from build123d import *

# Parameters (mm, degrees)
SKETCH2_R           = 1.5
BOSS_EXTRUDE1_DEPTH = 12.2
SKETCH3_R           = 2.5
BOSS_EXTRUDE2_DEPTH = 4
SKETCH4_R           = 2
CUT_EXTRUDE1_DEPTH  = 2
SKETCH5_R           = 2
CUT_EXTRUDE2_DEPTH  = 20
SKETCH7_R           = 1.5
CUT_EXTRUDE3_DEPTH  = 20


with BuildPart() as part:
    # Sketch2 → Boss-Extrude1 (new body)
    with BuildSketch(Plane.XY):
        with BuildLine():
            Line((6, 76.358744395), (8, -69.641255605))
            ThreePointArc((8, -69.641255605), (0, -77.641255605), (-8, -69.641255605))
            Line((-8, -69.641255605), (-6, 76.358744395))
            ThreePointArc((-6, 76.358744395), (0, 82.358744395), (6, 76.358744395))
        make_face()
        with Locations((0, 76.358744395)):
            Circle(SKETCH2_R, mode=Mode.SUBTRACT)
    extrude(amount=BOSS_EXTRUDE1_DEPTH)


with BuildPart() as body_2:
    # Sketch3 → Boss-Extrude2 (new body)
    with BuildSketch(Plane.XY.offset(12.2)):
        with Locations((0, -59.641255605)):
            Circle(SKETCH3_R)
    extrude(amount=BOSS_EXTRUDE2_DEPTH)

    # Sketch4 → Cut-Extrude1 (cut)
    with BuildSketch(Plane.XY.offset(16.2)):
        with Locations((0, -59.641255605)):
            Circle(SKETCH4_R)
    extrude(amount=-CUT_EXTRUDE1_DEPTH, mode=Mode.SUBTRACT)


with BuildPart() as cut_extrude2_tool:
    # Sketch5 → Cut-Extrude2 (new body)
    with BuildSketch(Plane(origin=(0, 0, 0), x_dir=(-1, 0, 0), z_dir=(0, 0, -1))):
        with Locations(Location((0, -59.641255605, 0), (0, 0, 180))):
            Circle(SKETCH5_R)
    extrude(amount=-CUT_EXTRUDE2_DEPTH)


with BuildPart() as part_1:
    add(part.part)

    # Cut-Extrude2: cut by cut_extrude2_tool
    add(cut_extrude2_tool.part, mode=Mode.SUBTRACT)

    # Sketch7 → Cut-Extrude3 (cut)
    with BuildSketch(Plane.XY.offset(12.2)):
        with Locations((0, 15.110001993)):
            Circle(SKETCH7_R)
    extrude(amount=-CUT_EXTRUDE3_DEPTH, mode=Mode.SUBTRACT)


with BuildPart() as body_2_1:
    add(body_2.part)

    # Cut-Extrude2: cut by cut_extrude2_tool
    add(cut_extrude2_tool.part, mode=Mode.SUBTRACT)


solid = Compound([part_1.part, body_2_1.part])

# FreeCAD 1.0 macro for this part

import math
import FreeCAD as App
import Part
import Sketcher
Q = App.Units.Quantity

doc = App.newDocument("Part")
body = doc.addObject("PartDesign::Body", "Body")

sketch1 = doc.addObject("Sketcher::SketchObject", "Sketch")
body.addObject(sketch1)
sketch1.AttachmentSupport = (doc.XY_Plane, [""])
sketch1.MapMode = "FlatFace"
sketch1.addGeometry([
    Part.LineSegment(App.Vector(8, -69.6, 0), App.Vector(6, 76.4, 0)),
    Part.ArcOfCircle(Part.Circle(App.Vector(0, 76.4, 0), App.Vector(0, 0, 1), 6), math.radians(0), math.radians(180)),
    Part.LineSegment(App.Vector(-6, 76.4, 0), App.Vector(-8, -69.6, 0)),
    Part.ArcOfCircle(Part.Circle(App.Vector(0, -69.6, 0), App.Vector(0, 0, 1), 8), math.radians(180), math.radians(360)),
    Part.Circle(App.Vector(0, 76.4, 0), App.Vector(0, 0, 1), 1.5),
], False)
sketch1.addConstraint([
    Sketcher.Constraint("Coincident", 0, 2, 1, 1),
    Sketcher.Constraint("Coincident", 1, 2, 2, 1),
    Sketcher.Constraint("Coincident", 2, 2, 3, 1),
    Sketcher.Constraint("Coincident", 3, 2, 0, 1),
    Sketcher.Constraint("Coincident", 4, 3, 1, 3),
    Sketcher.Constraint("Symmetric", 0, 2, 1, 2, -2),
    Sketcher.Constraint("Symmetric", 2, 2, 3, 2, -2),
    Sketcher.Constraint("Horizontal", 4, 3, 0, 2),
    Sketcher.Constraint("Horizontal", 3, 3, 2, 2),
    Sketcher.Constraint("Diameter", 4, Q("3 mm")),
    Sketcher.Constraint("Radius", 1, Q("6 mm")),
    Sketcher.Constraint("Radius", 3, Q("8 mm")),
    Sketcher.Constraint("DistanceY", 3, 3, 1, 3, Q("146 mm")),
    Sketcher.Constraint("DistanceY", -1, 1, 1, 3, Q("76.358744 mm")),
])
pad1 = doc.addObject("PartDesign::Pad", "Pad")
body.addObject(pad1)
pad1.Profile = sketch1
pad1.Length = 12.2
body2 = doc.addObject("PartDesign::Body", "Body001")

sketch2 = doc.addObject("Sketcher::SketchObject", "Sketch001")
body2.addObject(sketch2)
sketch2.AttachmentSupport = (doc.getObject("XY_Plane001"), [""])
sketch2.MapMode = "FlatFace"
sketch2.AttachmentOffset = App.Placement(App.Vector(0, 0, 12.2), App.Rotation())
sketch2.addGeometry(Part.Circle(App.Vector(0, -59.6, 0), App.Vector(0, 0, 1), 2.5), False)
sketch2.addConstraint([
    Sketcher.Constraint("PointOnObject", 0, 3, -2),
    Sketcher.Constraint("Diameter", 0, Q("5 mm")),
    Sketcher.Constraint("DistanceY", 0, 3, -1, 1, Q("59.641256 mm")),
])
pad2 = doc.addObject("PartDesign::Pad", "Pad001")
body2.addObject(pad2)
pad2.Profile = sketch2
pad2.Length = 4

sketch3 = doc.addObject("Sketcher::SketchObject", "Sketch002")
body2.addObject(sketch3)
sketch3.AttachmentSupport = (doc.getObject("XY_Plane001"), [""])
sketch3.MapMode = "FlatFace"
sketch3.AttachmentOffset = App.Placement(App.Vector(0, 0, 16.2), App.Rotation())
sketch3.addGeometry(Part.Circle(App.Vector(0, -59.6, 0), App.Vector(0, 0, 1), 2), False)
sketch3.addConstraint([
    Sketcher.Constraint("PointOnObject", 0, 3, -2),
    Sketcher.Constraint("Diameter", 0, Q("4 mm")),
    Sketcher.Constraint("DistanceY", 0, 3, -1, 1, Q("59.641256 mm")),
])
pocket1 = doc.addObject("PartDesign::Pocket", "Pocket")
body2.addObject(pocket1)
pocket1.Profile = sketch3
pocket1.Length = 2
body3 = doc.addObject("PartDesign::Body", "Body002")

sketch4 = doc.addObject("Sketcher::SketchObject", "Sketch003")
body3.addObject(sketch4)
sketch4.AttachmentSupport = (doc.getObject("XY_Plane002"), [""])
sketch4.MapMode = "FlatFace"
sketch4.addGeometry(Part.Circle(App.Vector(0, -59.6, 0), App.Vector(0, 0, 1), 2), False)
sketch4.addConstraint([
    Sketcher.Constraint("PointOnObject", 0, 3, -2),
    Sketcher.Constraint("Diameter", 0, Q("4 mm")),
    Sketcher.Constraint("DistanceY", 0, 3, -1, 1, Q("59.641256 mm")),
])
pad3 = doc.addObject("PartDesign::Pad", "Pad002")
body3.addObject(pad3)
pad3.Profile = sketch4
pad3.Length = 20
doc.recompute()

body4 = doc.addObject("PartDesign::Body", "Body003")
body4.BaseFeature = body3
boolean = doc.addObject("PartDesign::Boolean", "Boolean")
body.addObject(boolean)
boolean.Type = "Cut"
boolean.addObjects([body4])
doc.recompute()

sketch5 = doc.addObject("Sketcher::SketchObject", "Sketch004")
body.addObject(sketch5)
sketch5.AttachmentSupport = (doc.XY_Plane, [""])
sketch5.MapMode = "FlatFace"
sketch5.AttachmentOffset = App.Placement(App.Vector(0, 0, 12.2), App.Rotation())
sketch5.addGeometry(Part.Circle(App.Vector(0, 15.1, 0), App.Vector(0, 0, 1), 1.5), False)
sketch5.addConstraint([
    Sketcher.Constraint("PointOnObject", 0, 3, -2),
    Sketcher.Constraint("Diameter", 0, Q("3 mm")),
    Sketcher.Constraint("DistanceY", -1, 1, 0, 3, Q("15.110002 mm")),
])
pocket2 = doc.addObject("PartDesign::Pocket", "Pocket001")
body.addObject(pocket2)
pocket2.Profile = sketch5
pocket2.Length = 20
doc.recompute()

boolean2 = doc.addObject("PartDesign::Boolean", "Boolean001")
body2.addObject(boolean2)
boolean2.Type = "Cut"
boolean2.addObjects([body3])

doc.recompute()
